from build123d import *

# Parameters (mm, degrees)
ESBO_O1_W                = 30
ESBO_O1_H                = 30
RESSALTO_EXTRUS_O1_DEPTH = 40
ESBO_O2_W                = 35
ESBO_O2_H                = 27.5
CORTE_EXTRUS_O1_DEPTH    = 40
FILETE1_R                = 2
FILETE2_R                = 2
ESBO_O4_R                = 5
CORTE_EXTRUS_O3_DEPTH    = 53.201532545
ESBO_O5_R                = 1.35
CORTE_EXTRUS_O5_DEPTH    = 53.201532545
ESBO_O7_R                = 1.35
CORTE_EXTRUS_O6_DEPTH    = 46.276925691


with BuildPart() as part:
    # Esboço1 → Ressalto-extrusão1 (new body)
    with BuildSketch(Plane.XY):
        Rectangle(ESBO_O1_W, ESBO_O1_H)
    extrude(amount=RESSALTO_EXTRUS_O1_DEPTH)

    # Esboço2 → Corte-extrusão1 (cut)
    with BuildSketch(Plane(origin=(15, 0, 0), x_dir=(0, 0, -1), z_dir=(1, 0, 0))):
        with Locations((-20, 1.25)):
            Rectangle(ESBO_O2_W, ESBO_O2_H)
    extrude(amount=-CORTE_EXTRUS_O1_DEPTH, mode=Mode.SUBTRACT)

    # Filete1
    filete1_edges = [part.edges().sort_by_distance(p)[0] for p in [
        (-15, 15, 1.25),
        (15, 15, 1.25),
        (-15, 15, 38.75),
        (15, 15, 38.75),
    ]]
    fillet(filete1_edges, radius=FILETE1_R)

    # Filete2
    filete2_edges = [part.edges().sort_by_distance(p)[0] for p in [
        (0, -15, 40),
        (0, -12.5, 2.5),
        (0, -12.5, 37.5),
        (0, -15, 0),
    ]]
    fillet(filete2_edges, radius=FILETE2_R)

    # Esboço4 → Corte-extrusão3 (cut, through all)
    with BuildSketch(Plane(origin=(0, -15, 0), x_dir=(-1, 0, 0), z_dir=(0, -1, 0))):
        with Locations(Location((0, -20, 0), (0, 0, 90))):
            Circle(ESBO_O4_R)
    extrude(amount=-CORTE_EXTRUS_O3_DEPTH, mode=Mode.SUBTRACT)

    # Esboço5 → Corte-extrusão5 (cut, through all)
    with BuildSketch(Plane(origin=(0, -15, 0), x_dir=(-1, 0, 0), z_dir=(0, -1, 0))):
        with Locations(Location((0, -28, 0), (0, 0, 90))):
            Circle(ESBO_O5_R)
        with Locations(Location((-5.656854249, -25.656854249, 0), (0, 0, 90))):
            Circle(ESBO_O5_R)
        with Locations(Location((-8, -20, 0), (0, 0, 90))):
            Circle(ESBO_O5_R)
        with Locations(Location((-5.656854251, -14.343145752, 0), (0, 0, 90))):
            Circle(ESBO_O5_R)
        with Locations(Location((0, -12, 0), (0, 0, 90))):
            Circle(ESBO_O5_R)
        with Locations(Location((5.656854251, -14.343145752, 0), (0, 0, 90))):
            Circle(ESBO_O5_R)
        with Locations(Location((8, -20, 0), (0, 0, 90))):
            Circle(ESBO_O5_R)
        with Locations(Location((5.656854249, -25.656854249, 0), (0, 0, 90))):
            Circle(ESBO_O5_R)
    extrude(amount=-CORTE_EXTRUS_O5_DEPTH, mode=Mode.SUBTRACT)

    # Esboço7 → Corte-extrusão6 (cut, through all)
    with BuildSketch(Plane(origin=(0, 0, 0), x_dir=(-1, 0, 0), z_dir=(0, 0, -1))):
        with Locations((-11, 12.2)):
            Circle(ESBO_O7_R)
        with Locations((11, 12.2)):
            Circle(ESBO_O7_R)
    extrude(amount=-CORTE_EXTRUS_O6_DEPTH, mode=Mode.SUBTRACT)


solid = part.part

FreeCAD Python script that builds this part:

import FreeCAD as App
import Part
import Sketcher
from FreeCAD import Vector
Q = App.Units.Quantity


def edges_at(feature, points):
    """Names of the edges that pass closest to the given points."""
    edges = feature.Shape.Edges
    near = lambda p: min(range(len(edges)), key=lambda i: edges[i].distToShape(Part.Vertex(*p))[0])
    return sorted({f"Edge{near(p) + 1}" for p in points})

doc = App.newDocument("Part")
body = doc.addObject("PartDesign::Body", "Body")

# Sketch on XY plane
sketch1 = body.newObject("Sketcher::SketchObject", "Sketch")
sketch1.AttachmentSupport = (doc.getObject("XY_Plane"), [""])
sketch1.MapMode = "FlatFace"
sketch1.addGeometry([
    Part.LineSegment(Vector(-15, 15, 0), Vector(-15, -15, 0)),
    Part.LineSegment(Vector(-15, -15, 0), Vector(15, -15, 0)),
    Part.LineSegment(Vector(15, -15, 0), Vector(15, 15, 0)),
    Part.LineSegment(Vector(15, 15, 0), Vector(-15, 15, 0)),
], False)
sketch1.addConstraint([
    Sketcher.Constraint("Coincident", 0, 2, 1, 1),
    Sketcher.Constraint("Coincident", 1, 2, 2, 1),
    Sketcher.Constraint("Coincident", 2, 2, 3, 1),
    Sketcher.Constraint("Coincident", 3, 2, 0, 1),
    Sketcher.Constraint("Vertical", 0),
    Sketcher.Constraint("Horizontal", 1),
    Sketcher.Constraint("Vertical", 2),
    Sketcher.Constraint("Horizontal", 3),
    Sketcher.Constraint("Symmetric", 0, 2, 2, 2, -1, 1),
    Sketcher.Constraint("Equal", 3, 0),
    Sketcher.Constraint("DistanceX", 1, 1, 1, 2, Q("30 mm")),
])
pad1 = body.newObject("PartDesign::Pad", "Pad")
pad1.Profile = sketch1
pad1.Length = 40

# Sketch on YZ plane
sketch2 = body.newObject("Sketcher::SketchObject", "Sketch001")
sketch2.AttachmentSupport = (doc.getObject("YZ_Plane"), [""])
sketch2.MapMode = "FlatFace"
sketch2.AttachmentOffset = App.Placement(Vector(0, 0, 15), App.Rotation())
sketch2.addGeometry([
    Part.LineSegment(Vector(15, 38, 0), Vector(-12, 38, 0)),
    Part.LineSegment(Vector(-12, 38, 0), Vector(-12, 2, 0)),
    Part.LineSegment(Vector(-12, 2, 0), Vector(15, 2, 0)),
    Part.LineSegment(Vector(15, 2, 0), Vector(15, 38, 0)),
], False)
sketch2.addConstraint([
    Sketcher.Constraint("Coincident", 0, 2, 1, 1),
    Sketcher.Constraint("Coincident", 1, 2, 2, 1),
    Sketcher.Constraint("Coincident", 2, 2, 3, 1),
    Sketcher.Constraint("Coincident", 3, 2, 0, 1),
    Sketcher.Constraint("Horizontal", 0),
    Sketcher.Constraint("Vertical", 1),
    Sketcher.Constraint("Horizontal", 2),
    Sketcher.Constraint("Vertical", 3),
    Sketcher.Constraint("DistanceY", 1, 2, 1, 1, Q("35 mm")),
    Sketcher.Constraint("DistanceX", 0, 2, 0, 1, Q("27.5 mm")),
    Sketcher.Constraint("DistanceX", -1, 1, 2, 2, Q("15 mm")),
    Sketcher.Constraint("DistanceY", -1, 1, 0, 2, Q("37.5 mm")),
])
pocket1 = body.newObject("PartDesign::Pocket", "Pocket")
pocket1.Profile = sketch2
pocket1.Length = 40
doc.recompute()

fillet = body.newObject("PartDesign::Fillet", "Fillet")
fillet.Base = (pocket1, edges_at(pocket1, [
    (-15, 15, 1.25),
    (15, 15, 1.25),
    (-15, 15, 38.75),
    (15, 15, 38.75),
]))
fillet.Radius = 2
doc.recompute()

fillet2 = body.newObject("PartDesign::Fillet", "Fillet001")
fillet2.Base = (fillet, edges_at(fillet, [
    (0, -15, 40),
    (0, -12.5, 2.5),
    (0, -12.5, 37.5),
    (0, -15, 0),
]))
fillet2.Radius = 2

# Sketch on XZ plane
sketch3 = body.newObject("Sketcher::SketchObject", "Sketch002")
sketch3.AttachmentSupport = (doc.getObject("XZ_Plane"), [""])
sketch3.MapMode = "FlatFace"
sketch3.AttachmentOffset = App.Placement(Vector(0, 0, 15), App.Rotation())
sketch3.addGeometry(Part.Circle(Vector(0, 20, 0), Vector(0, 0, 1), 5), False)
sketch3.addConstraint([
    Sketcher.Constraint("PointOnObject", 0, 3, -2),
    Sketcher.Constraint("Diameter", 0, Q("10 mm")),
    Sketcher.Constraint("DistanceY", -1, 1, 0, 3, Q("20 mm")),
])
pocket2 = body.newObject("PartDesign::Pocket", "Pocket001")
pocket2.Profile = sketch3
pocket2.Type = "ThroughAll"

# Sketch on XZ plane
sketch4 = body.newObject("Sketcher::SketchObject", "Sketch003")
sketch4.AttachmentSupport = (doc.getObject("XZ_Plane"), [""])
sketch4.MapMode = "FlatFace"
sketch4.AttachmentOffset = App.Placement(Vector(0, 0, 15), App.Rotation())
sketch4.addGeometry([
    Part.Circle(Vector(0, 28, 0), Vector(0, 0, 1), 1.4),  # 0
    Part.Circle(Vector(5.7, 25.7, 0), Vector(0, 0, 1), 1.4),  # 1
    Part.Circle(Vector(8, 20, 0), Vector(0, 0, 1), 1.4),  # 2
    Part.Circle(Vector(5.7, 14.3, 0), Vector(0, 0, 1), 1.4),  # 3
    Part.Circle(Vector(0, 12, 0), Vector(0, 0, 1), 1.4),  # 4
    Part.Circle(Vector(-5.7, 14.3, 0), Vector(0, 0, 1), 1.4),  # 5
    Part.Circle(Vector(-8, 20, 0), Vector(0, 0, 1), 1.4),  # 6
    Part.Circle(Vector(-5.7, 25.7, 0), Vector(0, 0, 1), 1.4),  # 7
], False)
sketch4.addConstraint([
    Sketcher.Constraint("Equal", 0, 1),
    Sketcher.Constraint("Equal", 1, 2),
    Sketcher.Constraint("Equal", 2, 3),
    Sketcher.Constraint("Equal", 3, 4),
    Sketcher.Constraint("Equal", 4, 5),
    Sketcher.Constraint("Equal", 5, 6),
    Sketcher.Constraint("Equal", 6, 7),
    Sketcher.Constraint("Symmetric", 3, 3, 5, 3, -2),
    Sketcher.Constraint("Symmetric", 2, 3, 6, 3, -2),
    Sketcher.Constraint("Symmetric", 1, 3, 7, 3, -2),
    Sketcher.Constraint("PointOnObject", 0, 3, -2),
    Sketcher.Constraint("PointOnObject", 4, 3, -2),
    Sketcher.Constraint("Vertical", 1, 3, 3, 3),
    Sketcher.Constraint("Diameter", 0, Q("2.7 mm")),
    Sketcher.Constraint("DistanceY", -1, 1, 0, 3, Q("28 mm")),
    Sketcher.Constraint("DistanceX", -1, 1, 2, 3, Q("8 mm")),
    Sketcher.Constraint("DistanceY", -1, 1, 2, 3, Q("20 mm")),
    Sketcher.Constraint("DistanceY", -1, 1, 4, 3, Q("12 mm")),
    Sketcher.Constraint("DistanceY", 3, 3, 1, 3, Q("11.313708 mm")),
    Sketcher.Constraint("DistanceX", 5, 3, 3, 3, Q("11.313709 mm")),
    Sketcher.Constraint("DistanceY", -1, 1, 1, 3, Q("25.656854 mm")),
])
pocket3 = body.newObject("PartDesign::Pocket", "Pocket002")
pocket3.Profile = sketch4
pocket3.Type = "ThroughAll"

# Sketch on XY plane
sketch5 = body.newObject("Sketcher::SketchObject", "Sketch004")
sketch5.AttachmentSupport = (doc.getObject("XY_Plane"), [""])
sketch5.MapMode = "FlatFace"
sketch5.addGeometry([
    Part.Circle(Vector(11, 12.2, 0), Vector(0, 0, 1), 1.4),
    Part.Circle(Vector(-11, 12.2, 0), Vector(0, 0, 1), 1.4),
], False)
sketch5.addConstraint([
    Sketcher.Constraint("Equal", 0, 1),
    Sketcher.Constraint("Symmetric", 0, 3, 1, 3, -2),
    Sketcher.Constraint("Diameter", 0, Q("2.7 mm")),
    Sketcher.Constraint("DistanceX", -1, 1, 0, 3, Q("11 mm")),
    Sketcher.Constraint("DistanceY", -1, 1, 0, 3, Q("12.2 mm")),
])
pocket4 = body.newObject("PartDesign::Pocket", "Pocket003")
pocket4.Profile = sketch5
pocket4.Type = "ThroughAll"
pocket4.Reversed = True

doc.recompute()
